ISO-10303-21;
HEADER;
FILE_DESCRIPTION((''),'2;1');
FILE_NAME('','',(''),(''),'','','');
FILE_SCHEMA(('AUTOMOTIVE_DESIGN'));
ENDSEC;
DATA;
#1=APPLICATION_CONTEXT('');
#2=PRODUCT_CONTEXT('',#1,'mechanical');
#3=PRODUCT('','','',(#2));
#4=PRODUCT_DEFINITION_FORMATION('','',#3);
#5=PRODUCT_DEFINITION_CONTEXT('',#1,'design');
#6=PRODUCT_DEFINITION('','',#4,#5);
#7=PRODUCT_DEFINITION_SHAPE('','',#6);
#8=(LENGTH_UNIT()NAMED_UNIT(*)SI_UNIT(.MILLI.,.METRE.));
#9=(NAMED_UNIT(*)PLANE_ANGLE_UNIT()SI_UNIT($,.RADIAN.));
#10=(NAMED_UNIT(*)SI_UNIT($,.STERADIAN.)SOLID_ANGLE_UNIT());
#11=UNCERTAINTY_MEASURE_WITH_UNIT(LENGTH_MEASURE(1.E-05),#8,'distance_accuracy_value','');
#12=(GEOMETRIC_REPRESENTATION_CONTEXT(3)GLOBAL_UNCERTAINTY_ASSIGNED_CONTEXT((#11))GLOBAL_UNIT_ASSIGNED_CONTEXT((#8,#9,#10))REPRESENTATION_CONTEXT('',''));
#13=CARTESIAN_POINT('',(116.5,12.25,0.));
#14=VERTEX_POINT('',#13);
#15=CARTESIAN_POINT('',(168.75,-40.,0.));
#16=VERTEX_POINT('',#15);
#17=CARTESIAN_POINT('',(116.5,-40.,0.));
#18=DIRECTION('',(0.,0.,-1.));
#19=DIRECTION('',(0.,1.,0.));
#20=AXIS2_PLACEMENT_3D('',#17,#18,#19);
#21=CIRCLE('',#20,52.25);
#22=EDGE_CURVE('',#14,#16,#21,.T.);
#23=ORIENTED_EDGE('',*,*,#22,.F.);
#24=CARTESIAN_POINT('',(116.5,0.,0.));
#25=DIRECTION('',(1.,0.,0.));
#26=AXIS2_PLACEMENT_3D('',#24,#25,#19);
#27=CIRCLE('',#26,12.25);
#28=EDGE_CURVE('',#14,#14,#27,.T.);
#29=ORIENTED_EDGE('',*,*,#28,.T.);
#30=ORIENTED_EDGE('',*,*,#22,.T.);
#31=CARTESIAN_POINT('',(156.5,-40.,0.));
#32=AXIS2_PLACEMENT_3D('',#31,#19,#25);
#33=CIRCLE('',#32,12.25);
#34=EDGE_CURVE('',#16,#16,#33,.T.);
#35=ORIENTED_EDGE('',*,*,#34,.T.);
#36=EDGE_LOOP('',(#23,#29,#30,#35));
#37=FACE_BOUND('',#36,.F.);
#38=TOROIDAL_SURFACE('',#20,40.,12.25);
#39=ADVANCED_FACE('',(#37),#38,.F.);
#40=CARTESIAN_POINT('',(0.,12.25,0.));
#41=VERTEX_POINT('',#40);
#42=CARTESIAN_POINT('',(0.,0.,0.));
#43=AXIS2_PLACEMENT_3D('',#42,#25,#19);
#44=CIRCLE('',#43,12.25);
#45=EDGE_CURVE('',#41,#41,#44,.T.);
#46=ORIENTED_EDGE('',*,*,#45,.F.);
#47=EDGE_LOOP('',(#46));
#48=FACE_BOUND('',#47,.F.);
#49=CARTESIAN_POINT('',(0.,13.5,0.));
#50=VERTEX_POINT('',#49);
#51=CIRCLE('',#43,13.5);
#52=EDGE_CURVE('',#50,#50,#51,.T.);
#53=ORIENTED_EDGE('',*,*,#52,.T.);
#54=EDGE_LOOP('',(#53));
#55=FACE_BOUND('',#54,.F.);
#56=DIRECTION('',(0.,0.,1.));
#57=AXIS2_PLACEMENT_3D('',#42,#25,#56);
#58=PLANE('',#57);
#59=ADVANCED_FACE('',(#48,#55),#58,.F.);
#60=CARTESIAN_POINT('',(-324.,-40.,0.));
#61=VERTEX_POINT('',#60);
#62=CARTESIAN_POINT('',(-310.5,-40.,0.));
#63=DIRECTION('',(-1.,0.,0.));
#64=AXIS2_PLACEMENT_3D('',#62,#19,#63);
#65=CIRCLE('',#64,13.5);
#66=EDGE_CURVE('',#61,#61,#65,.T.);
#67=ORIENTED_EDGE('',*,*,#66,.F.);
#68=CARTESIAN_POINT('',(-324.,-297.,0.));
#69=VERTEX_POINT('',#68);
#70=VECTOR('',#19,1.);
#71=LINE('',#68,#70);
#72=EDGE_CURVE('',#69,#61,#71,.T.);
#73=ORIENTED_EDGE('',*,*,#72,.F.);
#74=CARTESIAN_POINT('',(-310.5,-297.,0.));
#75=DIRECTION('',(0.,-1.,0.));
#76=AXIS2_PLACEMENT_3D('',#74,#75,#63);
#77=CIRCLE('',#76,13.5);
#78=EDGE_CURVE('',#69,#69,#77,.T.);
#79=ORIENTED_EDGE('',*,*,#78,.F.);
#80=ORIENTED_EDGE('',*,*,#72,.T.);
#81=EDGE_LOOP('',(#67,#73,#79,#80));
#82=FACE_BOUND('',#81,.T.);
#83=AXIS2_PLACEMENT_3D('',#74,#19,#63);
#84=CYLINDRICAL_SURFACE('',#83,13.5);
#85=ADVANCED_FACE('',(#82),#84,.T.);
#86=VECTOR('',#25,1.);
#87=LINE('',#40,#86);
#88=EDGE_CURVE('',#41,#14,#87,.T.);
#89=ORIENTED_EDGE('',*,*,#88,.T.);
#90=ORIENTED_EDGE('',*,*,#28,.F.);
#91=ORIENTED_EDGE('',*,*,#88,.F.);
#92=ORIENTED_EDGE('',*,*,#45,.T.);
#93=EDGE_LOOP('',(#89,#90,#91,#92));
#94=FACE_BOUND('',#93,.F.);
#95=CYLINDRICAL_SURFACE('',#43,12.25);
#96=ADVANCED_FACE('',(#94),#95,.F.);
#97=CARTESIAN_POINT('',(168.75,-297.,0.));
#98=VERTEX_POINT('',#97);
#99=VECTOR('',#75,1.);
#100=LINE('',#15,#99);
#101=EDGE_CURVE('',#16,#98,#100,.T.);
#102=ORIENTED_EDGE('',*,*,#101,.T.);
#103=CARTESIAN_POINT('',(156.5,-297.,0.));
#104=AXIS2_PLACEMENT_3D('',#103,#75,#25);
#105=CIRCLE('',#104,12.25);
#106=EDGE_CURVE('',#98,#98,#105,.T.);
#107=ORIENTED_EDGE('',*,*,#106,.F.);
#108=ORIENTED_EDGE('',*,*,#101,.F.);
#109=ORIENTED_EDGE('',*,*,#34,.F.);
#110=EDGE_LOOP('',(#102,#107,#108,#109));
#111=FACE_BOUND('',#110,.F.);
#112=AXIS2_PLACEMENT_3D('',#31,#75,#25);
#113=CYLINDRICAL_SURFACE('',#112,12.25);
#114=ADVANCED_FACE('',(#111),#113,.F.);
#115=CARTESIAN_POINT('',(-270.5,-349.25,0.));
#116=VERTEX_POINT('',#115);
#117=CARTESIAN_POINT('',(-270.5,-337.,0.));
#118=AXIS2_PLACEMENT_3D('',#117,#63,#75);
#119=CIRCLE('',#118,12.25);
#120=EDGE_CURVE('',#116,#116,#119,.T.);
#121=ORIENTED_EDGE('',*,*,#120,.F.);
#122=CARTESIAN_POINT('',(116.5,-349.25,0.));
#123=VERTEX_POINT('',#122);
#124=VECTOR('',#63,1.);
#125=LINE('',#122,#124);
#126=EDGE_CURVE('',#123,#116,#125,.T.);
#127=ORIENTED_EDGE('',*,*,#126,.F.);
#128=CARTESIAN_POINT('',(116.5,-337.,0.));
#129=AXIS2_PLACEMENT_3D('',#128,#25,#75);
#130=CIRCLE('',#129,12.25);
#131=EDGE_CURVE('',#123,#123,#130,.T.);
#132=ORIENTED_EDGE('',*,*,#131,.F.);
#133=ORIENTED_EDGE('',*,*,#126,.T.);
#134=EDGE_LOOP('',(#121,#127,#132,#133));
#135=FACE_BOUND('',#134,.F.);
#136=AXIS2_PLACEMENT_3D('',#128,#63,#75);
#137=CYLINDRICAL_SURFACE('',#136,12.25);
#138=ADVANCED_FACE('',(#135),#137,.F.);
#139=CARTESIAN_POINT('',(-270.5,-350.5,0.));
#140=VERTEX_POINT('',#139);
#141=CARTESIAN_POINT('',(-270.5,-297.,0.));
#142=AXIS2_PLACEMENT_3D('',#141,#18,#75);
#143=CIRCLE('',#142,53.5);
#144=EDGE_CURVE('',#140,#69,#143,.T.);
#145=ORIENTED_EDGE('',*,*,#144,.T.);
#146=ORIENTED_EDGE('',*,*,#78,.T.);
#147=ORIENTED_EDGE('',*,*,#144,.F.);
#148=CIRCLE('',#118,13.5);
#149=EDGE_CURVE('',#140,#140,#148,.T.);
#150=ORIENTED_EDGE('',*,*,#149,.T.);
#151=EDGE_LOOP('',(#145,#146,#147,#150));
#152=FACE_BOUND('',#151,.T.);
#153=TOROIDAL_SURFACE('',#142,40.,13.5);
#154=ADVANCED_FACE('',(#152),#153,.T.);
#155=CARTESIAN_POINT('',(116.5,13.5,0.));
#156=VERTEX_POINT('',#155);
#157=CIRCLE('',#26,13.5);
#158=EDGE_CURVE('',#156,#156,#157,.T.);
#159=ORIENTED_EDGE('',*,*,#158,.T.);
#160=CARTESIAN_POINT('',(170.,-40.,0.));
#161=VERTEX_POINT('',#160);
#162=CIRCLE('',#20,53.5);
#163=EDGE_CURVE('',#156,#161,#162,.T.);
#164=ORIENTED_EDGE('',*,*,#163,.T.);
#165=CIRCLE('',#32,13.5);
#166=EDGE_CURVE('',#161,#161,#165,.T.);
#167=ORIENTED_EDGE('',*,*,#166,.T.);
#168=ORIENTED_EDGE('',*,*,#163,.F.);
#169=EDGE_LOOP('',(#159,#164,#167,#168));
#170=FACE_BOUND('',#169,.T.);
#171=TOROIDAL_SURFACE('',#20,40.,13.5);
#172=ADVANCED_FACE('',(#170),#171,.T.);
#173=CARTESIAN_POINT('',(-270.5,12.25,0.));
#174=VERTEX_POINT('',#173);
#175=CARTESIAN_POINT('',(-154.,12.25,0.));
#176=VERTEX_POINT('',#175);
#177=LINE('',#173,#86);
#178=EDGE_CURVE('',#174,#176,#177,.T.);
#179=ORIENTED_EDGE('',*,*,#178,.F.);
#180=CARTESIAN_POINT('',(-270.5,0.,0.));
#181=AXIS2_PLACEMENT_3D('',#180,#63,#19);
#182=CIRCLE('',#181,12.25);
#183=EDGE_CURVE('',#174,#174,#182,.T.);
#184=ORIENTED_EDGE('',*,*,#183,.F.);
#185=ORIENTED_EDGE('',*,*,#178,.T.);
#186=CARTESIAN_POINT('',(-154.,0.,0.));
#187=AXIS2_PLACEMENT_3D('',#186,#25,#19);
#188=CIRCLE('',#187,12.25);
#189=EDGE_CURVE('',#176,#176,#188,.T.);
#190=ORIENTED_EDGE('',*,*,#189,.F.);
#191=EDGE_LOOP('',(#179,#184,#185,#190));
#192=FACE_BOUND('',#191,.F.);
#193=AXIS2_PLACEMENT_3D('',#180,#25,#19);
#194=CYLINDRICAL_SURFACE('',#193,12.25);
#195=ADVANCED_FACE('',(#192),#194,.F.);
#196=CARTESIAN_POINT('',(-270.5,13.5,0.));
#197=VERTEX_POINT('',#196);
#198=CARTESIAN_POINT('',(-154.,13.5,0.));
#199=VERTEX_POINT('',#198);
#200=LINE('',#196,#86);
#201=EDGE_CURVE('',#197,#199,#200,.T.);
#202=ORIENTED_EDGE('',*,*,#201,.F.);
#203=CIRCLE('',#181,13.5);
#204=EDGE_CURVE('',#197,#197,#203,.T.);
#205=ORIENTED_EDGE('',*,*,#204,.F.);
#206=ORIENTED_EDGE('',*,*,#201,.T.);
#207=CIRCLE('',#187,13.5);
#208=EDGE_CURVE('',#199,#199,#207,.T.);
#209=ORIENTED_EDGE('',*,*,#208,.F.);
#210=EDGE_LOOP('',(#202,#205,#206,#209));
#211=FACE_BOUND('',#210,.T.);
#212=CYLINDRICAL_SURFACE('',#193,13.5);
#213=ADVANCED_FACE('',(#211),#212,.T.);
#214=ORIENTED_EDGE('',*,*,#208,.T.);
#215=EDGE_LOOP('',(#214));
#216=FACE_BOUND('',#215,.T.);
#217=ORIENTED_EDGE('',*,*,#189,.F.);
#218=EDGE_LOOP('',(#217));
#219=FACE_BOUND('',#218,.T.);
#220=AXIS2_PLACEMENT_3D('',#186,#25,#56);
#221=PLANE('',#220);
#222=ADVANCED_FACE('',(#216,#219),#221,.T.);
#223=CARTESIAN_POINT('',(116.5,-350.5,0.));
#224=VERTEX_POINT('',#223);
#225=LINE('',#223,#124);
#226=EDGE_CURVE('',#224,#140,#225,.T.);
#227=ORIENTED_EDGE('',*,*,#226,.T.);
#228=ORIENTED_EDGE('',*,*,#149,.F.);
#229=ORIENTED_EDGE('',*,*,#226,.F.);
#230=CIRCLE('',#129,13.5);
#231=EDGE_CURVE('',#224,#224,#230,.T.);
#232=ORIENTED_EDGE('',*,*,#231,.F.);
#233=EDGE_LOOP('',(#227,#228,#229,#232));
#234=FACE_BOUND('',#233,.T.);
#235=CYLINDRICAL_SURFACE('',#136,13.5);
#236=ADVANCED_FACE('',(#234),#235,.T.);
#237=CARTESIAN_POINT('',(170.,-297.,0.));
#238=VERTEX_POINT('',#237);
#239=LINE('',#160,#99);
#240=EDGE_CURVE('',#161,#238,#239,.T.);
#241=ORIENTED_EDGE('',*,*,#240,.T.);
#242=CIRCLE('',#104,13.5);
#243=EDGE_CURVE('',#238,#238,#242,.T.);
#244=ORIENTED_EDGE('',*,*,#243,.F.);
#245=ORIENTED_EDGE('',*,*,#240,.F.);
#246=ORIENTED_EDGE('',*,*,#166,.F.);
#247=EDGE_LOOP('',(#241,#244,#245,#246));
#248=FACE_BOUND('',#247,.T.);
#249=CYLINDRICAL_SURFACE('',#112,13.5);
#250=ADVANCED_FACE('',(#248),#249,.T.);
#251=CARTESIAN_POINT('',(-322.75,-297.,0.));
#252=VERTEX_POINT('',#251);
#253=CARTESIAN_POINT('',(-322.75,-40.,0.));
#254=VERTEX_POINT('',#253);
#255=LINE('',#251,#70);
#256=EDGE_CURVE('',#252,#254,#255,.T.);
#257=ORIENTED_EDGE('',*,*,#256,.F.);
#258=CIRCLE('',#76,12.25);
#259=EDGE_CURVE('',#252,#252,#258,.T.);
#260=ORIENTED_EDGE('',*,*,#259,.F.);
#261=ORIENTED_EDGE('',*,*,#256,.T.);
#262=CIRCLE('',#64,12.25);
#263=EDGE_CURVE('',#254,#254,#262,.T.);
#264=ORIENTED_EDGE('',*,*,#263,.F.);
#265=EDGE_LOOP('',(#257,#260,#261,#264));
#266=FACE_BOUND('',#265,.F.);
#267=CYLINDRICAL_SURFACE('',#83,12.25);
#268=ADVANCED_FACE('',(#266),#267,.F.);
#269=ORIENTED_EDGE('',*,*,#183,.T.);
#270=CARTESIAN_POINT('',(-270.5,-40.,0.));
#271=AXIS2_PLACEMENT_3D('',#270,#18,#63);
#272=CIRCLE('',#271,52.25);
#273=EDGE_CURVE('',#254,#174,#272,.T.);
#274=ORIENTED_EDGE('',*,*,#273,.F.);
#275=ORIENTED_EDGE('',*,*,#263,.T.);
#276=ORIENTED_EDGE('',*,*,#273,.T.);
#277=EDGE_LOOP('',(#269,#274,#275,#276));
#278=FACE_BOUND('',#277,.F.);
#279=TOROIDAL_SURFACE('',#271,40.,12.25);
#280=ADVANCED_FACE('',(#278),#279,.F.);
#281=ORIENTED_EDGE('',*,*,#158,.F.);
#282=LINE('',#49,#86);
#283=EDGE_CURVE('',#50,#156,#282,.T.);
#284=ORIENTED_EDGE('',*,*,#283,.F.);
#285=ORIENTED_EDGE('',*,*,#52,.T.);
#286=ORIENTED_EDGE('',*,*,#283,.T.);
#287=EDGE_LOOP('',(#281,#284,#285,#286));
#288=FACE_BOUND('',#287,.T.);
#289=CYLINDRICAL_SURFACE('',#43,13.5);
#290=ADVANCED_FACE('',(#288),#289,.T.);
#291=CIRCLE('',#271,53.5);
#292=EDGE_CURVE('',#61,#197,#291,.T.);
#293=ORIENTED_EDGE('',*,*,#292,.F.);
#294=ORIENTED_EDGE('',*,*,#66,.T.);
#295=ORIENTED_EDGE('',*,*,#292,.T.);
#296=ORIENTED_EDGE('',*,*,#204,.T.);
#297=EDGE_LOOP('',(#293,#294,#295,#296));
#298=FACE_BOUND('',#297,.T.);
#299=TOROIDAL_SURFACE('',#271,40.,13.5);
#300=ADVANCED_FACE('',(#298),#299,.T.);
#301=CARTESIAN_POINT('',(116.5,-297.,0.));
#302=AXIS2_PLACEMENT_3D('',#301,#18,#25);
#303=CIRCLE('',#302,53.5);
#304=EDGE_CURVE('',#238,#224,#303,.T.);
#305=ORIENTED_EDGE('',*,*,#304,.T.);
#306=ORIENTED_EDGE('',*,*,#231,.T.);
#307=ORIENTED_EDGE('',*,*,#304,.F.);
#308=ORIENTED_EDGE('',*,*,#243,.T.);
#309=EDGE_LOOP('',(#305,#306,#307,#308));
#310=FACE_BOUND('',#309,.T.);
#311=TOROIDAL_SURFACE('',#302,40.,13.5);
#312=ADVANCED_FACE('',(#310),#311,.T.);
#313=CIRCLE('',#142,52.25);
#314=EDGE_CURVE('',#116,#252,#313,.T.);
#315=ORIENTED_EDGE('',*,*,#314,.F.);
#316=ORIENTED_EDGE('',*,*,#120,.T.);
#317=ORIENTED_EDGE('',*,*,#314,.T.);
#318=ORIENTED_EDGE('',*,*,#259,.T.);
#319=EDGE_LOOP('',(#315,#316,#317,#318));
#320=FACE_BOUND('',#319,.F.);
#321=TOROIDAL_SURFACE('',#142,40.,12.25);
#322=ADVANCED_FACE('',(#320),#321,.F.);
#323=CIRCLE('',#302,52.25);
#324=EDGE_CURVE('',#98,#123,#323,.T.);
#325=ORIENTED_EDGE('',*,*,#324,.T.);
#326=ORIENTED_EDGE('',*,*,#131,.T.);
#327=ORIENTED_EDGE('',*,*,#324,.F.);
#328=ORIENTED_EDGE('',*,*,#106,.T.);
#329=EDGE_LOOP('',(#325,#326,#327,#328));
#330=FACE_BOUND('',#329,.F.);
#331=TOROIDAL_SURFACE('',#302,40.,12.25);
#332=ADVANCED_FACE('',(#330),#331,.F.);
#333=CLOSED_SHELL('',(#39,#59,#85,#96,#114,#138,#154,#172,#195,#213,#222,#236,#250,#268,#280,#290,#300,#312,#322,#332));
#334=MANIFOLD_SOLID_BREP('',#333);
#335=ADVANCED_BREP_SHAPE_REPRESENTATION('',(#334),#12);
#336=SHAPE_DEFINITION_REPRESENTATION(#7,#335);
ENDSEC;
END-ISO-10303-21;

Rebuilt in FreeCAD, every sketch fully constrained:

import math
import FreeCAD as App
import Part
import Sketcher

doc = App.newDocument("Part")
body = doc.addObject("PartDesign::Body", "Body")

# Sketch on YZ plane
sketch1 = doc.addObject("Sketcher::SketchObject", "Sketch")
body.addObject(sketch1)
sketch1.AttachmentSupport = (doc.YZ_Plane, [""])
sketch1.MapMode = "FlatFace"
sketch1.addGeometry([
    Part.Circle(App.Vector(0, 0, 0), App.Vector(0, 0, 1), 14),
    Part.Circle(App.Vector(0, 0, 0), App.Vector(0, 0, 1), 12),
], False)
sketch1.addConstraint([
    Sketcher.Constraint("Coincident", 0, 3, -1, 1),
    Sketcher.Constraint("Coincident", 1, 3, -1, 1),
    Sketcher.Constraint("Diameter", 0, 27.0),
    Sketcher.Constraint("Diameter", 1, 24.5),
])

# Sketch on XY plane
sketch2 = doc.addObject("Sketcher::SketchObject", "Sketch001")
body.addObject(sketch2)
sketch2.AttachmentSupport = (doc.XY_Plane, [""])
sketch2.MapMode = "FlatFace"
sketch2.addGeometry([
    Part.LineSegment(App.Vector(0, 0, 0), App.Vector(116, 0, 0)),  # 0
    Part.ArcOfCircle(Part.Circle(App.Vector(116, -40, 0), App.Vector(0, 0, 1), 40), math.radians(0), math.radians(90)),  # 1
    Part.LineSegment(App.Vector(156, -40, 0), App.Vector(156, -297, 0)),  # 2
    Part.ArcOfCircle(Part.Circle(App.Vector(116, -297, 0), App.Vector(0, 0, 1), 40), math.radians(-90), math.radians(0)),  # 3
    Part.LineSegment(App.Vector(116, -337, 0), App.Vector(-270, -337, 0)),  # 4
    Part.ArcOfCircle(Part.Circle(App.Vector(-270, -297, 0), App.Vector(0, 0, 1), 40), math.radians(180), math.radians(270)),  # 5
    Part.LineSegment(App.Vector(-310, -297, 0), App.Vector(-310, -40, 0)),  # 6
    Part.ArcOfCircle(Part.Circle(App.Vector(-270, -40, 0), App.Vector(0, 0, 1), 40), math.radians(90), math.radians(180)),  # 7
    Part.LineSegment(App.Vector(-270, 0, 0), App.Vector(-154, 0, 0)),  # 8
], False)
sketch2.addConstraint([
    Sketcher.Constraint("Tangent", 0, 2, 1, 2),
    Sketcher.Constraint("Tangent", 1, 1, 2, 1),
    Sketcher.Constraint("Tangent", 2, 2, 3, 2),
    Sketcher.Constraint("Tangent", 3, 1, 4, 1),
    Sketcher.Constraint("Tangent", 4, 2, 5, 2),
    Sketcher.Constraint("Tangent", 5, 1, 6, 1),
    Sketcher.Constraint("Tangent", 6, 2, 7, 2),
    Sketcher.Constraint("Tangent", 7, 1, 8, 1),
    Sketcher.Constraint("Horizontal", 0),
    Sketcher.Constraint("Vertical", 2),
    Sketcher.Constraint("Horizontal", 4),
    Sketcher.Constraint("Vertical", 6),
    Sketcher.Constraint("Horizontal", 8),
    Sketcher.Constraint("Coincident", 0, 1, -1, 1),
    Sketcher.Constraint("Equal", 1, 3),
    Sketcher.Constraint("Equal", 3, 5),
    Sketcher.Constraint("Equal", 5, 7),
    Sketcher.Constraint("PointOnObject", 7, 1, -1),
    Sketcher.Constraint("Equal", 0, 8),
    Sketcher.Constraint("Radius", 1, 40.0),
    Sketcher.Constraint("DistanceX", 4, 2, 4, 1, 387.0),
    Sketcher.Constraint("DistanceY", 2, 2, 2, 1, 257.0),
    Sketcher.Constraint("DistanceX", 0, 1, 0, 2, 116.5),
])
doc.recompute()

additivepipe = doc.addObject("PartDesign::AdditivePipe", "AdditivePipe")
body.addObject(additivepipe)
additivepipe.Profile = sketch1
additivepipe.Spine = (sketch2, ["Edge1", "Edge2", "Edge3", "Edge4", "Edge5", "Edge6", "Edge7", "Edge8", "Edge9"])

doc.recompute()
